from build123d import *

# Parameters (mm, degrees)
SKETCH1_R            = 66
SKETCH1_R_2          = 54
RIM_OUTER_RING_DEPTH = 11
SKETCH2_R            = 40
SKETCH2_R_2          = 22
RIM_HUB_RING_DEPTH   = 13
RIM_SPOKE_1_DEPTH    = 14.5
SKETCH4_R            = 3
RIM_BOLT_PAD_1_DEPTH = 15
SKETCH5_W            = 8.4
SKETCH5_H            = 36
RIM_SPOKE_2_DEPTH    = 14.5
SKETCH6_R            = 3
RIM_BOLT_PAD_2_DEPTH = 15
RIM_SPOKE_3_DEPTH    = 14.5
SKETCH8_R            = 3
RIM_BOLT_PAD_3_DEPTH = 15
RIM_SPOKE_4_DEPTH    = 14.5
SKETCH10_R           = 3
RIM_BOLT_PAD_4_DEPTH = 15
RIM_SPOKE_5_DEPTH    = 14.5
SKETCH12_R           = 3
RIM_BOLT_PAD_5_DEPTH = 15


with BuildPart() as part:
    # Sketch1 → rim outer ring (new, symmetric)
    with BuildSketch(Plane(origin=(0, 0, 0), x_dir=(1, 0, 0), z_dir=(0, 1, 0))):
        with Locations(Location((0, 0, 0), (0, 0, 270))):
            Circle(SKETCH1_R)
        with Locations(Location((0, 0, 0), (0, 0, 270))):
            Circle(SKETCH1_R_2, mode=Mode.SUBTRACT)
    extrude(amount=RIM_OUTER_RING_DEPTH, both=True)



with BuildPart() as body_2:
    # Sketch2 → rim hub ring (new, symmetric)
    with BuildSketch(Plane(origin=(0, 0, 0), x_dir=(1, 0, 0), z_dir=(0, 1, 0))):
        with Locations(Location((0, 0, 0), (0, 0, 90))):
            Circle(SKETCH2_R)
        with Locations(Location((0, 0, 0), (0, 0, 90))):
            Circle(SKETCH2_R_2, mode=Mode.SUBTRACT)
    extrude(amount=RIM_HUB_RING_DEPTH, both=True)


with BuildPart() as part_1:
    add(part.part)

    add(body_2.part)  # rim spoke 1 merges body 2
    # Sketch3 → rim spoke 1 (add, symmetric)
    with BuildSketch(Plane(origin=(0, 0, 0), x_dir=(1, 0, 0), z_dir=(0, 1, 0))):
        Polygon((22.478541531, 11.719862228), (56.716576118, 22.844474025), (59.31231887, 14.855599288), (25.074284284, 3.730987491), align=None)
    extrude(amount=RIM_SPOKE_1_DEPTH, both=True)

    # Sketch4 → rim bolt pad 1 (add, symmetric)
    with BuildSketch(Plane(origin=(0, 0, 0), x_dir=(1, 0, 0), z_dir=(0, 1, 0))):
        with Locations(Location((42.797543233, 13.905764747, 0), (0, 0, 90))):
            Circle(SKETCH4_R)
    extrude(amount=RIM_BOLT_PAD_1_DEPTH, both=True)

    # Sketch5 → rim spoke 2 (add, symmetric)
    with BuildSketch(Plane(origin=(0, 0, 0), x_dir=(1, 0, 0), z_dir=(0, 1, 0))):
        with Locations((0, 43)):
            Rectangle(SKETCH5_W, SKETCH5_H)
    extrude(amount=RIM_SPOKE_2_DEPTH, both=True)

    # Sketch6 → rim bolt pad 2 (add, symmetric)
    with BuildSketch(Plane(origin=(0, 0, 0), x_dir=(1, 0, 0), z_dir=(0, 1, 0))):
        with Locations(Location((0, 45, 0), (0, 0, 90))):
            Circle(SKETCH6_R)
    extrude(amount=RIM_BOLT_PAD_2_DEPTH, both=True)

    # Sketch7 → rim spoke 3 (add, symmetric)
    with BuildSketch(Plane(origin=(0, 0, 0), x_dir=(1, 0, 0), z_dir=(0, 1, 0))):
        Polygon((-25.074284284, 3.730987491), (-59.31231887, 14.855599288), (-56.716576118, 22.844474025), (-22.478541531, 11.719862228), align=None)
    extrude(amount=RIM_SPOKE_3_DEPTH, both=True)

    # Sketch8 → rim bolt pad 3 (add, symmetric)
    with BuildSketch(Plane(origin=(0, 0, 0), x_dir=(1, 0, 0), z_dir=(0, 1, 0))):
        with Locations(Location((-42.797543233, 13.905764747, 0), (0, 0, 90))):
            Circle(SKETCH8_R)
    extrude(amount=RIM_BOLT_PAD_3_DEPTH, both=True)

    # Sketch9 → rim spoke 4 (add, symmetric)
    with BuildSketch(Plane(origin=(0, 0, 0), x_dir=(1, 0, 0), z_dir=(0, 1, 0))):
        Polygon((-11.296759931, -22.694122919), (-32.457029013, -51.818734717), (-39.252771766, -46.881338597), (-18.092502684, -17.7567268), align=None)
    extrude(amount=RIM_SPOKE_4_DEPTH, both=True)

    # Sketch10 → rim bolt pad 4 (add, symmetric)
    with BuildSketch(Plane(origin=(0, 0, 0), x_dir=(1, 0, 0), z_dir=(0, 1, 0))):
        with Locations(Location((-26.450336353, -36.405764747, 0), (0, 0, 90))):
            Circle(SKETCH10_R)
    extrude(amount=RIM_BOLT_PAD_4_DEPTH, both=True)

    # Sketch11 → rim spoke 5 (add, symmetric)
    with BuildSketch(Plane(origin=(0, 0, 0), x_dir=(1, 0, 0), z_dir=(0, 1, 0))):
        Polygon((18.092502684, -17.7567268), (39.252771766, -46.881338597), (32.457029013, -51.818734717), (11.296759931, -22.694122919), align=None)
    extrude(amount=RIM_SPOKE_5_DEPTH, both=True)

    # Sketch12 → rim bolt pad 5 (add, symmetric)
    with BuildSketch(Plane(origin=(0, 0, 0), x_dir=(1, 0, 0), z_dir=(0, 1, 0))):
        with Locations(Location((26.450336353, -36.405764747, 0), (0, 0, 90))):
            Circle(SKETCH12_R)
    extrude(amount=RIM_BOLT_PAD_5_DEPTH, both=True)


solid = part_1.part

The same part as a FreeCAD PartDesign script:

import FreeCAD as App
import Part
import Sketcher
Q = App.Units.Quantity

doc = App.newDocument("Part")
body = doc.addObject("PartDesign::Body", "Body")

sketch1 = body.newObject("Sketcher::SketchObject", "Sketch")
sketch1.AttachmentSupport = (doc.getObject("XZ_Plane"), [""])
sketch1.MapMode = "FlatFace"
sketch1.addGeometry([
    Part.Circle(App.Vector(0, 0, 0), App.Vector(0, 0, 1), 66),
    Part.Circle(App.Vector(0, 0, 0), App.Vector(0, 0, 1), 54),
], False)
sketch1.addConstraint([
    Sketcher.Constraint("Coincident", 0, 3, -1, 1),
    Sketcher.Constraint("Coincident", 1, 3, -1, 1),
    Sketcher.Constraint("Diameter", 0, Q("132 mm")),
    Sketcher.Constraint("Diameter", 1, Q("108 mm")),
])
pad1 = body.newObject("PartDesign::Pad", "Pad")
pad1.Profile = sketch1
pad1.Length = 22
pad1.Midplane = True
body2 = doc.addObject("PartDesign::Body", "Body001")

sketch2 = body2.newObject("Sketcher::SketchObject", "Sketch001")
sketch2.AttachmentSupport = (doc.getObject("XZ_Plane001"), [""])
sketch2.MapMode = "FlatFace"
sketch2.addGeometry([
    Part.Circle(App.Vector(0, 0, 0), App.Vector(0, 0, 1), 40),
    Part.Circle(App.Vector(0, 0, 0), App.Vector(0, 0, 1), 22),
], False)
sketch2.addConstraint([
    Sketcher.Constraint("Coincident", 0, 3, -1, 1),
    Sketcher.Constraint("Coincident", 1, 3, -1, 1),
    Sketcher.Constraint("Diameter", 0, Q("80 mm")),
    Sketcher.Constraint("Diameter", 1, Q("44 mm")),
])
pad2 = body2.newObject("PartDesign::Pad", "Pad001")
pad2.Profile = sketch2
pad2.Length = 26
pad2.Midplane = True
body.AllowCompound = True
doc.recompute()

boolean = body.newObject("PartDesign::Boolean", "Boolean")
boolean.Type = "Fuse"
boolean.addObjects([body2])

sketch3 = body.newObject("Sketcher::SketchObject", "Sketch002")
sketch3.AttachmentSupport = (doc.getObject("XZ_Plane"), [""])
sketch3.MapMode = "FlatFace"
sketch3.addGeometry([
    Part.LineSegment(App.Vector(56.716576, -22.844474, 0), App.Vector(22.478542, -11.719862, 0)),
    Part.LineSegment(App.Vector(22.478542, -11.719862, 0), App.Vector(25.074284, -3.730987, 0)),
    Part.LineSegment(App.Vector(25.074284, -3.730987, 0), App.Vector(59.312319, -14.855599, 0)),
    Part.LineSegment(App.Vector(59.312319, -14.855599, 0), App.Vector(56.716576, -22.844474, 0)),
], False)
sketch3.addConstraint([
    Sketcher.Constraint("Coincident", 0, 2, 1, 1),
    Sketcher.Constraint("Coincident", 1, 2, 2, 1),
    Sketcher.Constraint("Coincident", 2, 2, 3, 1),
    Sketcher.Constraint("Coincident", 3, 2, 0, 1),
    Sketcher.Constraint("Perpendicular", 0, 1),
    Sketcher.Constraint("Perpendicular", 1, 2),
    Sketcher.Constraint("Perpendicular", 2, 3),
    Sketcher.Constraint("Angle", 0, Q("162 deg")),
    Sketcher.Constraint("Distance", 0, Q("36 mm")),
    Sketcher.Constraint("Distance", 1, Q("8.4 mm")),
    Sketcher.Constraint("DistanceY", 2, 2, -1, 1, Q("14.855599 mm")),
    Sketcher.Constraint("DistanceX", -1, 1, 0, 2, Q("22.478542 mm")),
])
pad3 = body.newObject("PartDesign::Pad", "Pad002")
pad3.Profile = sketch3
pad3.Length = 29
pad3.Midplane = True

sketch4 = body.newObject("Sketcher::SketchObject", "Sketch003")
sketch4.AttachmentSupport = (doc.getObject("XZ_Plane"), [""])
sketch4.MapMode = "FlatFace"
sketch4.addGeometry(Part.Circle(App.Vector(42.797543, -13.905765, 0), App.Vector(0, 0, 1), 3), False)
sketch4.addConstraint([
    Sketcher.Constraint("Diameter", 0, Q("6 mm")),
    Sketcher.Constraint("DistanceX", -1, 1, 0, 3, Q("42.797543 mm")),
    Sketcher.Constraint("DistanceY", 0, 3, -1, 1, Q("13.905765 mm")),
])
pad4 = body.newObject("PartDesign::Pad", "Pad003")
pad4.Profile = sketch4
pad4.Length = 30
pad4.Midplane = True

sketch5 = body.newObject("Sketcher::SketchObject", "Sketch004")
sketch5.AttachmentSupport = (doc.getObject("XZ_Plane"), [""])
sketch5.MapMode = "FlatFace"
sketch5.addGeometry([
    Part.LineSegment(App.Vector(-4.2, -61, 0), App.Vector(-4.2, -25, 0)),
    Part.LineSegment(App.Vector(-4.2, -25, 0), App.Vector(4.2, -25, 0)),
    Part.LineSegment(App.Vector(4.2, -25, 0), App.Vector(4.2, -61, 0)),
    Part.LineSegment(App.Vector(4.2, -61, 0), App.Vector(-4.2, -61, 0)),
], False)
sketch5.addConstraint([
    Sketcher.Constraint("Coincident", 0, 2, 1, 1),
    Sketcher.Constraint("Coincident", 1, 2, 2, 1),
    Sketcher.Constraint("Coincident", 2, 2, 3, 1),
    Sketcher.Constraint("Coincident", 3, 2, 0, 1),
    Sketcher.Constraint("Vertical", 0),
    Sketcher.Constraint("Horizontal", 1),
    Sketcher.Constraint("Vertical", 2),
    Sketcher.Constraint("Horizontal", 3),
    Sketcher.Constraint("DistanceY", 0, 1, 0, 2, Q("36 mm")),
    Sketcher.Constraint("DistanceX", 1, 1, 1, 2, Q("8.4 mm")),
    Sketcher.Constraint("DistanceY", 0, 2, -1, 1, Q("25 mm")),
    Sketcher.Constraint("DistanceX", 0, 2, -1, 1, Q("4.2 mm")),
])
pad5 = body.newObject("PartDesign::Pad", "Pad004")
pad5.Profile = sketch5
pad5.Length = 29
pad5.Midplane = True

sketch6 = body.newObject("Sketcher::SketchObject", "Sketch005")
sketch6.AttachmentSupport = (doc.getObject("XZ_Plane"), [""])
sketch6.MapMode = "FlatFace"
sketch6.addGeometry(Part.Circle(App.Vector(0, -45, 0), App.Vector(0, 0, 1), 3), False)
sketch6.addConstraint([
    Sketcher.Constraint("PointOnObject", 0, 3, -2),
    Sketcher.Constraint("Diameter", 0, Q("6 mm")),
    Sketcher.Constraint("DistanceY", 0, 3, -1, 1, Q("45 mm")),
])
pad6 = body.newObject("PartDesign::Pad", "Pad005")
pad6.Profile = sketch6
pad6.Length = 30
pad6.Midplane = True

sketch7 = body.newObject("Sketcher::SketchObject", "Sketch006")
sketch7.AttachmentSupport = (doc.getObject("XZ_Plane"), [""])
sketch7.MapMode = "FlatFace"
sketch7.addGeometry([
    Part.LineSegment(App.Vector(-59.312319, -14.855599, 0), App.Vector(-25.074284, -3.730987, 0)),
    Part.LineSegment(App.Vector(-25.074284, -3.730987, 0), App.Vector(-22.478542, -11.719862, 0)),
    Part.LineSegment(App.Vector(-22.478542, -11.719862, 0), App.Vector(-56.716576, -22.844474, 0)),
    Part.LineSegment(App.Vector(-56.716576, -22.844474, 0), App.Vector(-59.312319, -14.855599, 0)),
], False)
sketch7.addConstraint([
    Sketcher.Constraint("Coincident", 0, 2, 1, 1),
    Sketcher.Constraint("Coincident", 1, 2, 2, 1),
    Sketcher.Constraint("Coincident", 2, 2, 3, 1),
    Sketcher.Constraint("Coincident", 3, 2, 0, 1),
    Sketcher.Constraint("Perpendicular", 0, 1),
    Sketcher.Constraint("Perpendicular", 1, 2),
    Sketcher.Constraint("Perpendicular", 2, 3),
    Sketcher.Constraint("Angle", 0, Q("18 deg")),
    Sketcher.Constraint("Distance", 0, Q("36 mm")),
    Sketcher.Constraint("Distance", 1, Q("8.4 mm")),
    Sketcher.Constraint("DistanceY", 3, 2, -1, 1, Q("14.855599 mm")),
    Sketcher.Constraint("DistanceX", 1, 2, -1, 1, Q("22.478542 mm")),
])
pad7 = body.newObject("PartDesign::Pad", "Pad006")
pad7.Profile = sketch7
pad7.Length = 29
pad7.Midplane = True

sketch8 = body.newObject("Sketcher::SketchObject", "Sketch007")
sketch8.AttachmentSupport = (doc.getObject("XZ_Plane"), [""])
sketch8.MapMode = "FlatFace"
sketch8.addGeometry(Part.Circle(App.Vector(-42.797543, -13.905765, 0), App.Vector(0, 0, 1), 3), False)
sketch8.addConstraint([
    Sketcher.Constraint("Diameter", 0, Q("6 mm")),
    Sketcher.Constraint("DistanceX", 0, 3, -1, 1, Q("42.797543 mm")),
    Sketcher.Constraint("DistanceY", 0, 3, -1, 1, Q("13.905765 mm")),
])
pad8 = body.newObject("PartDesign::Pad", "Pad007")
pad8.Profile = sketch8
pad8.Length = 30
pad8.Midplane = True

sketch9 = body.newObject("Sketcher::SketchObject", "Sketch008")
sketch9.AttachmentSupport = (doc.getObject("XZ_Plane"), [""])
sketch9.MapMode = "FlatFace"
sketch9.addGeometry([
    Part.LineSegment(App.Vector(-32.457029, 51.818735, 0), App.Vector(-11.29676, 22.694123, 0)),
    Part.LineSegment(App.Vector(-11.29676, 22.694123, 0), App.Vector(-18.092503, 17.756727, 0)),
    Part.LineSegment(App.Vector(-18.092503, 17.756727, 0), App.Vector(-39.252772, 46.881339, 0)),
    Part.LineSegment(App.Vector(-39.252772, 46.881339, 0), App.Vector(-32.457029, 51.818735, 0)),
], False)
sketch9.addConstraint([
    Sketcher.Constraint("Coincident", 0, 2, 1, 1),
    Sketcher.Constraint("Coincident", 1, 2, 2, 1),
    Sketcher.Constraint("Coincident", 2, 2, 3, 1),
    Sketcher.Constraint("Coincident", 3, 2, 0, 1),
    Sketcher.Constraint("Perpendicular", 0, 1),
    Sketcher.Constraint("Perpendicular", 1, 2),
    Sketcher.Constraint("Perpendicular", 2, 3),
    Sketcher.Constraint("Angle", 0, Q("-54 deg")),
    Sketcher.Constraint("Distance", 0, Q("36 mm")),
    Sketcher.Constraint("Distance", 1, Q("8.4 mm")),
    Sketcher.Constraint("DistanceX", 0, 2, -1, 1, Q("11.29676 mm")),
    Sketcher.Constraint("DistanceY", -1, 1, 2, 2, Q("46.881339 mm")),
])
pad9 = body.newObject("PartDesign::Pad", "Pad008")
pad9.Profile = sketch9
pad9.Length = 29
pad9.Midplane = True

sketch10 = body.newObject("Sketcher::SketchObject", "Sketch009")
sketch10.AttachmentSupport = (doc.getObject("XZ_Plane"), [""])
sketch10.MapMode = "FlatFace"
sketch10.addGeometry(Part.Circle(App.Vector(-26.450336, 36.405765, 0), App.Vector(0, 0, 1), 3), False)
sketch10.addConstraint([
    Sketcher.Constraint("Diameter", 0, Q("6 mm")),
    Sketcher.Constraint("DistanceX", 0, 3, -1, 1, Q("26.450336 mm")),
    Sketcher.Constraint("DistanceY", -1, 1, 0, 3, Q("36.405765 mm")),
])
pad10 = body.newObject("PartDesign::Pad", "Pad009")
pad10.Profile = sketch10
pad10.Length = 30
pad10.Midplane = True

sketch11 = body.newObject("Sketcher::SketchObject", "Sketch010")
sketch11.AttachmentSupport = (doc.getObject("XZ_Plane"), [""])
sketch11.MapMode = "FlatFace"
sketch11.addGeometry([
    Part.LineSegment(App.Vector(39.252772, 46.881339, 0), App.Vector(18.092503, 17.756727, 0)),
    Part.LineSegment(App.Vector(18.092503, 17.756727, 0), App.Vector(11.29676, 22.694123, 0)),
    Part.LineSegment(App.Vector(11.29676, 22.694123, 0), App.Vector(32.457029, 51.818735, 0)),
    Part.LineSegment(App.Vector(32.457029, 51.818735, 0), App.Vector(39.252772, 46.881339, 0)),
], False)
sketch11.addConstraint([
    Sketcher.Constraint("Coincident", 0, 2, 1, 1),
    Sketcher.Constraint("Coincident", 1, 2, 2, 1),
    Sketcher.Constraint("Coincident", 2, 2, 3, 1),
    Sketcher.Constraint("Coincident", 3, 2, 0, 1),
    Sketcher.Constraint("Perpendicular", 0, 1),
    Sketcher.Constraint("Perpendicular", 1, 2),
    Sketcher.Constraint("Perpendicular", 2, 3),
    Sketcher.Constraint("Angle", 0, Q("-126 deg")),
    Sketcher.Constraint("Distance", 0, Q("36 mm")),
    Sketcher.Constraint("Distance", 1, Q("8.4 mm")),
    Sketcher.Constraint("DistanceX", -1, 1, 1, 2, Q("11.29676 mm")),
    Sketcher.Constraint("DistanceY", -1, 1, 3, 2, Q("46.881339 mm")),
])
pad11 = body.newObject("PartDesign::Pad", "Pad010")
pad11.Profile = sketch11
pad11.Length = 29
pad11.Midplane = True

sketch12 = body.newObject("Sketcher::SketchObject", "Sketch011")
sketch12.AttachmentSupport = (doc.getObject("XZ_Plane"), [""])
sketch12.MapMode = "FlatFace"
sketch12.addGeometry(Part.Circle(App.Vector(26.450336, 36.405765, 0), App.Vector(0, 0, 1), 3), False)
sketch12.addConstraint([
    Sketcher.Constraint("Diameter", 0, Q("6 mm")),
    Sketcher.Constraint("DistanceX", -1, 1, 0, 3, Q("26.450336 mm")),
    Sketcher.Constraint("DistanceY", -1, 1, 0, 3, Q("36.405765 mm")),
])
pad12 = body.newObject("PartDesign::Pad", "Pad011")
pad12.Profile = sketch12
pad12.Length = 30
pad12.Midplane = True

doc.recompute()
